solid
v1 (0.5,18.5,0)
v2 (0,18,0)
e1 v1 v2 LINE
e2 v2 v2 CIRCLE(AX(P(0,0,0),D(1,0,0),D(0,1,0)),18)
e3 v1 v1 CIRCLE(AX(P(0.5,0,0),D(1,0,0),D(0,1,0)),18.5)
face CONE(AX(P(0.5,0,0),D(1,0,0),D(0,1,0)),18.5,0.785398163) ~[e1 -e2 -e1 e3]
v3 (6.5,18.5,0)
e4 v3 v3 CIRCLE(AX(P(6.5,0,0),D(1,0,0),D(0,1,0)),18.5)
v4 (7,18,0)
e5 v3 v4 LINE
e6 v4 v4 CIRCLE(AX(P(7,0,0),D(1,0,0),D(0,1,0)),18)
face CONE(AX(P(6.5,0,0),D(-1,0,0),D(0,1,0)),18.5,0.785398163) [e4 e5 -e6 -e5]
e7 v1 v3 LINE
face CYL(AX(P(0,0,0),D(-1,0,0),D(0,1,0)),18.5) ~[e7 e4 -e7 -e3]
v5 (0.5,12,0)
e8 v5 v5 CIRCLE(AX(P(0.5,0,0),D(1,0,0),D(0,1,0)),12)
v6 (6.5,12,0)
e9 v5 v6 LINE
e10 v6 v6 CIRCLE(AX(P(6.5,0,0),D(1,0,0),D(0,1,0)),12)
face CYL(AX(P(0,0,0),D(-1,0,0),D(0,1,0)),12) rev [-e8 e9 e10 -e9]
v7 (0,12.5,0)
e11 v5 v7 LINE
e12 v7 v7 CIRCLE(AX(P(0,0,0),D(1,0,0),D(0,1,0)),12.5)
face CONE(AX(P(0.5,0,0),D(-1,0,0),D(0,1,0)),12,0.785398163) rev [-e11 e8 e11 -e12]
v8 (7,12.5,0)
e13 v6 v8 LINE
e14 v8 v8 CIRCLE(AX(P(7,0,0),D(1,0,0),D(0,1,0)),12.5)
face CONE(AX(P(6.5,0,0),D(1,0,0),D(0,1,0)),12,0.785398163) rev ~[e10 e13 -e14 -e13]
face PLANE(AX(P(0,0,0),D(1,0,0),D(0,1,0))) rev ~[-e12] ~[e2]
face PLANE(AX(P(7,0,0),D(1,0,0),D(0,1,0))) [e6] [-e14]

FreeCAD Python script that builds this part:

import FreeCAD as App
import Part
import Sketcher


def edges_at(feature, points):
    """Names of the edges that pass closest to the given points."""
    edges = feature.Shape.Edges
    near = lambda p: min(range(len(edges)), key=lambda i: edges[i].distToShape(Part.Vertex(*p))[0])
    return sorted({f"Edge{near(p) + 1}" for p in points})

doc = App.newDocument("Part")
body = doc.addObject("PartDesign::Body", "Body")

# Sketch on YZ plane
sketch1 = body.newObject("Sketcher::SketchObject", "Sketch")
sketch1.AttachmentSupport = (doc.getObject("YZ_Plane"), [""])
sketch1.MapMode = "FlatFace"
sketch1.addGeometry([
    Part.Circle(App.Vector(0, 0, 0), App.Vector(0, 0, 1), 18),
    Part.Circle(App.Vector(0, 0, 0), App.Vector(0, 0, 1), 12),
], False)
sketch1.addConstraint([
    Sketcher.Constraint("Coincident", 0, 3, -1, 1),
    Sketcher.Constraint("Coincident", 1, 3, -1, 1),
    Sketcher.Constraint("Diameter", 0, 37.0),
    Sketcher.Constraint("Diameter", 1, 24.0),
])
pad1 = body.newObject("PartDesign::Pad", "Pad")
pad1.Profile = sketch1
pad1.Length = 7
doc.recompute()

chamfer = body.newObject("PartDesign::Chamfer", "Chamfer")
chamfer.Base = (pad1, edges_at(pad1, [
    (0, -18.5, 0),
    (7, -18.5, 0),
    (0, -12, 0),
    (7, -12, 0),
]))
chamfer.Size = 0.5

doc.recompute()
